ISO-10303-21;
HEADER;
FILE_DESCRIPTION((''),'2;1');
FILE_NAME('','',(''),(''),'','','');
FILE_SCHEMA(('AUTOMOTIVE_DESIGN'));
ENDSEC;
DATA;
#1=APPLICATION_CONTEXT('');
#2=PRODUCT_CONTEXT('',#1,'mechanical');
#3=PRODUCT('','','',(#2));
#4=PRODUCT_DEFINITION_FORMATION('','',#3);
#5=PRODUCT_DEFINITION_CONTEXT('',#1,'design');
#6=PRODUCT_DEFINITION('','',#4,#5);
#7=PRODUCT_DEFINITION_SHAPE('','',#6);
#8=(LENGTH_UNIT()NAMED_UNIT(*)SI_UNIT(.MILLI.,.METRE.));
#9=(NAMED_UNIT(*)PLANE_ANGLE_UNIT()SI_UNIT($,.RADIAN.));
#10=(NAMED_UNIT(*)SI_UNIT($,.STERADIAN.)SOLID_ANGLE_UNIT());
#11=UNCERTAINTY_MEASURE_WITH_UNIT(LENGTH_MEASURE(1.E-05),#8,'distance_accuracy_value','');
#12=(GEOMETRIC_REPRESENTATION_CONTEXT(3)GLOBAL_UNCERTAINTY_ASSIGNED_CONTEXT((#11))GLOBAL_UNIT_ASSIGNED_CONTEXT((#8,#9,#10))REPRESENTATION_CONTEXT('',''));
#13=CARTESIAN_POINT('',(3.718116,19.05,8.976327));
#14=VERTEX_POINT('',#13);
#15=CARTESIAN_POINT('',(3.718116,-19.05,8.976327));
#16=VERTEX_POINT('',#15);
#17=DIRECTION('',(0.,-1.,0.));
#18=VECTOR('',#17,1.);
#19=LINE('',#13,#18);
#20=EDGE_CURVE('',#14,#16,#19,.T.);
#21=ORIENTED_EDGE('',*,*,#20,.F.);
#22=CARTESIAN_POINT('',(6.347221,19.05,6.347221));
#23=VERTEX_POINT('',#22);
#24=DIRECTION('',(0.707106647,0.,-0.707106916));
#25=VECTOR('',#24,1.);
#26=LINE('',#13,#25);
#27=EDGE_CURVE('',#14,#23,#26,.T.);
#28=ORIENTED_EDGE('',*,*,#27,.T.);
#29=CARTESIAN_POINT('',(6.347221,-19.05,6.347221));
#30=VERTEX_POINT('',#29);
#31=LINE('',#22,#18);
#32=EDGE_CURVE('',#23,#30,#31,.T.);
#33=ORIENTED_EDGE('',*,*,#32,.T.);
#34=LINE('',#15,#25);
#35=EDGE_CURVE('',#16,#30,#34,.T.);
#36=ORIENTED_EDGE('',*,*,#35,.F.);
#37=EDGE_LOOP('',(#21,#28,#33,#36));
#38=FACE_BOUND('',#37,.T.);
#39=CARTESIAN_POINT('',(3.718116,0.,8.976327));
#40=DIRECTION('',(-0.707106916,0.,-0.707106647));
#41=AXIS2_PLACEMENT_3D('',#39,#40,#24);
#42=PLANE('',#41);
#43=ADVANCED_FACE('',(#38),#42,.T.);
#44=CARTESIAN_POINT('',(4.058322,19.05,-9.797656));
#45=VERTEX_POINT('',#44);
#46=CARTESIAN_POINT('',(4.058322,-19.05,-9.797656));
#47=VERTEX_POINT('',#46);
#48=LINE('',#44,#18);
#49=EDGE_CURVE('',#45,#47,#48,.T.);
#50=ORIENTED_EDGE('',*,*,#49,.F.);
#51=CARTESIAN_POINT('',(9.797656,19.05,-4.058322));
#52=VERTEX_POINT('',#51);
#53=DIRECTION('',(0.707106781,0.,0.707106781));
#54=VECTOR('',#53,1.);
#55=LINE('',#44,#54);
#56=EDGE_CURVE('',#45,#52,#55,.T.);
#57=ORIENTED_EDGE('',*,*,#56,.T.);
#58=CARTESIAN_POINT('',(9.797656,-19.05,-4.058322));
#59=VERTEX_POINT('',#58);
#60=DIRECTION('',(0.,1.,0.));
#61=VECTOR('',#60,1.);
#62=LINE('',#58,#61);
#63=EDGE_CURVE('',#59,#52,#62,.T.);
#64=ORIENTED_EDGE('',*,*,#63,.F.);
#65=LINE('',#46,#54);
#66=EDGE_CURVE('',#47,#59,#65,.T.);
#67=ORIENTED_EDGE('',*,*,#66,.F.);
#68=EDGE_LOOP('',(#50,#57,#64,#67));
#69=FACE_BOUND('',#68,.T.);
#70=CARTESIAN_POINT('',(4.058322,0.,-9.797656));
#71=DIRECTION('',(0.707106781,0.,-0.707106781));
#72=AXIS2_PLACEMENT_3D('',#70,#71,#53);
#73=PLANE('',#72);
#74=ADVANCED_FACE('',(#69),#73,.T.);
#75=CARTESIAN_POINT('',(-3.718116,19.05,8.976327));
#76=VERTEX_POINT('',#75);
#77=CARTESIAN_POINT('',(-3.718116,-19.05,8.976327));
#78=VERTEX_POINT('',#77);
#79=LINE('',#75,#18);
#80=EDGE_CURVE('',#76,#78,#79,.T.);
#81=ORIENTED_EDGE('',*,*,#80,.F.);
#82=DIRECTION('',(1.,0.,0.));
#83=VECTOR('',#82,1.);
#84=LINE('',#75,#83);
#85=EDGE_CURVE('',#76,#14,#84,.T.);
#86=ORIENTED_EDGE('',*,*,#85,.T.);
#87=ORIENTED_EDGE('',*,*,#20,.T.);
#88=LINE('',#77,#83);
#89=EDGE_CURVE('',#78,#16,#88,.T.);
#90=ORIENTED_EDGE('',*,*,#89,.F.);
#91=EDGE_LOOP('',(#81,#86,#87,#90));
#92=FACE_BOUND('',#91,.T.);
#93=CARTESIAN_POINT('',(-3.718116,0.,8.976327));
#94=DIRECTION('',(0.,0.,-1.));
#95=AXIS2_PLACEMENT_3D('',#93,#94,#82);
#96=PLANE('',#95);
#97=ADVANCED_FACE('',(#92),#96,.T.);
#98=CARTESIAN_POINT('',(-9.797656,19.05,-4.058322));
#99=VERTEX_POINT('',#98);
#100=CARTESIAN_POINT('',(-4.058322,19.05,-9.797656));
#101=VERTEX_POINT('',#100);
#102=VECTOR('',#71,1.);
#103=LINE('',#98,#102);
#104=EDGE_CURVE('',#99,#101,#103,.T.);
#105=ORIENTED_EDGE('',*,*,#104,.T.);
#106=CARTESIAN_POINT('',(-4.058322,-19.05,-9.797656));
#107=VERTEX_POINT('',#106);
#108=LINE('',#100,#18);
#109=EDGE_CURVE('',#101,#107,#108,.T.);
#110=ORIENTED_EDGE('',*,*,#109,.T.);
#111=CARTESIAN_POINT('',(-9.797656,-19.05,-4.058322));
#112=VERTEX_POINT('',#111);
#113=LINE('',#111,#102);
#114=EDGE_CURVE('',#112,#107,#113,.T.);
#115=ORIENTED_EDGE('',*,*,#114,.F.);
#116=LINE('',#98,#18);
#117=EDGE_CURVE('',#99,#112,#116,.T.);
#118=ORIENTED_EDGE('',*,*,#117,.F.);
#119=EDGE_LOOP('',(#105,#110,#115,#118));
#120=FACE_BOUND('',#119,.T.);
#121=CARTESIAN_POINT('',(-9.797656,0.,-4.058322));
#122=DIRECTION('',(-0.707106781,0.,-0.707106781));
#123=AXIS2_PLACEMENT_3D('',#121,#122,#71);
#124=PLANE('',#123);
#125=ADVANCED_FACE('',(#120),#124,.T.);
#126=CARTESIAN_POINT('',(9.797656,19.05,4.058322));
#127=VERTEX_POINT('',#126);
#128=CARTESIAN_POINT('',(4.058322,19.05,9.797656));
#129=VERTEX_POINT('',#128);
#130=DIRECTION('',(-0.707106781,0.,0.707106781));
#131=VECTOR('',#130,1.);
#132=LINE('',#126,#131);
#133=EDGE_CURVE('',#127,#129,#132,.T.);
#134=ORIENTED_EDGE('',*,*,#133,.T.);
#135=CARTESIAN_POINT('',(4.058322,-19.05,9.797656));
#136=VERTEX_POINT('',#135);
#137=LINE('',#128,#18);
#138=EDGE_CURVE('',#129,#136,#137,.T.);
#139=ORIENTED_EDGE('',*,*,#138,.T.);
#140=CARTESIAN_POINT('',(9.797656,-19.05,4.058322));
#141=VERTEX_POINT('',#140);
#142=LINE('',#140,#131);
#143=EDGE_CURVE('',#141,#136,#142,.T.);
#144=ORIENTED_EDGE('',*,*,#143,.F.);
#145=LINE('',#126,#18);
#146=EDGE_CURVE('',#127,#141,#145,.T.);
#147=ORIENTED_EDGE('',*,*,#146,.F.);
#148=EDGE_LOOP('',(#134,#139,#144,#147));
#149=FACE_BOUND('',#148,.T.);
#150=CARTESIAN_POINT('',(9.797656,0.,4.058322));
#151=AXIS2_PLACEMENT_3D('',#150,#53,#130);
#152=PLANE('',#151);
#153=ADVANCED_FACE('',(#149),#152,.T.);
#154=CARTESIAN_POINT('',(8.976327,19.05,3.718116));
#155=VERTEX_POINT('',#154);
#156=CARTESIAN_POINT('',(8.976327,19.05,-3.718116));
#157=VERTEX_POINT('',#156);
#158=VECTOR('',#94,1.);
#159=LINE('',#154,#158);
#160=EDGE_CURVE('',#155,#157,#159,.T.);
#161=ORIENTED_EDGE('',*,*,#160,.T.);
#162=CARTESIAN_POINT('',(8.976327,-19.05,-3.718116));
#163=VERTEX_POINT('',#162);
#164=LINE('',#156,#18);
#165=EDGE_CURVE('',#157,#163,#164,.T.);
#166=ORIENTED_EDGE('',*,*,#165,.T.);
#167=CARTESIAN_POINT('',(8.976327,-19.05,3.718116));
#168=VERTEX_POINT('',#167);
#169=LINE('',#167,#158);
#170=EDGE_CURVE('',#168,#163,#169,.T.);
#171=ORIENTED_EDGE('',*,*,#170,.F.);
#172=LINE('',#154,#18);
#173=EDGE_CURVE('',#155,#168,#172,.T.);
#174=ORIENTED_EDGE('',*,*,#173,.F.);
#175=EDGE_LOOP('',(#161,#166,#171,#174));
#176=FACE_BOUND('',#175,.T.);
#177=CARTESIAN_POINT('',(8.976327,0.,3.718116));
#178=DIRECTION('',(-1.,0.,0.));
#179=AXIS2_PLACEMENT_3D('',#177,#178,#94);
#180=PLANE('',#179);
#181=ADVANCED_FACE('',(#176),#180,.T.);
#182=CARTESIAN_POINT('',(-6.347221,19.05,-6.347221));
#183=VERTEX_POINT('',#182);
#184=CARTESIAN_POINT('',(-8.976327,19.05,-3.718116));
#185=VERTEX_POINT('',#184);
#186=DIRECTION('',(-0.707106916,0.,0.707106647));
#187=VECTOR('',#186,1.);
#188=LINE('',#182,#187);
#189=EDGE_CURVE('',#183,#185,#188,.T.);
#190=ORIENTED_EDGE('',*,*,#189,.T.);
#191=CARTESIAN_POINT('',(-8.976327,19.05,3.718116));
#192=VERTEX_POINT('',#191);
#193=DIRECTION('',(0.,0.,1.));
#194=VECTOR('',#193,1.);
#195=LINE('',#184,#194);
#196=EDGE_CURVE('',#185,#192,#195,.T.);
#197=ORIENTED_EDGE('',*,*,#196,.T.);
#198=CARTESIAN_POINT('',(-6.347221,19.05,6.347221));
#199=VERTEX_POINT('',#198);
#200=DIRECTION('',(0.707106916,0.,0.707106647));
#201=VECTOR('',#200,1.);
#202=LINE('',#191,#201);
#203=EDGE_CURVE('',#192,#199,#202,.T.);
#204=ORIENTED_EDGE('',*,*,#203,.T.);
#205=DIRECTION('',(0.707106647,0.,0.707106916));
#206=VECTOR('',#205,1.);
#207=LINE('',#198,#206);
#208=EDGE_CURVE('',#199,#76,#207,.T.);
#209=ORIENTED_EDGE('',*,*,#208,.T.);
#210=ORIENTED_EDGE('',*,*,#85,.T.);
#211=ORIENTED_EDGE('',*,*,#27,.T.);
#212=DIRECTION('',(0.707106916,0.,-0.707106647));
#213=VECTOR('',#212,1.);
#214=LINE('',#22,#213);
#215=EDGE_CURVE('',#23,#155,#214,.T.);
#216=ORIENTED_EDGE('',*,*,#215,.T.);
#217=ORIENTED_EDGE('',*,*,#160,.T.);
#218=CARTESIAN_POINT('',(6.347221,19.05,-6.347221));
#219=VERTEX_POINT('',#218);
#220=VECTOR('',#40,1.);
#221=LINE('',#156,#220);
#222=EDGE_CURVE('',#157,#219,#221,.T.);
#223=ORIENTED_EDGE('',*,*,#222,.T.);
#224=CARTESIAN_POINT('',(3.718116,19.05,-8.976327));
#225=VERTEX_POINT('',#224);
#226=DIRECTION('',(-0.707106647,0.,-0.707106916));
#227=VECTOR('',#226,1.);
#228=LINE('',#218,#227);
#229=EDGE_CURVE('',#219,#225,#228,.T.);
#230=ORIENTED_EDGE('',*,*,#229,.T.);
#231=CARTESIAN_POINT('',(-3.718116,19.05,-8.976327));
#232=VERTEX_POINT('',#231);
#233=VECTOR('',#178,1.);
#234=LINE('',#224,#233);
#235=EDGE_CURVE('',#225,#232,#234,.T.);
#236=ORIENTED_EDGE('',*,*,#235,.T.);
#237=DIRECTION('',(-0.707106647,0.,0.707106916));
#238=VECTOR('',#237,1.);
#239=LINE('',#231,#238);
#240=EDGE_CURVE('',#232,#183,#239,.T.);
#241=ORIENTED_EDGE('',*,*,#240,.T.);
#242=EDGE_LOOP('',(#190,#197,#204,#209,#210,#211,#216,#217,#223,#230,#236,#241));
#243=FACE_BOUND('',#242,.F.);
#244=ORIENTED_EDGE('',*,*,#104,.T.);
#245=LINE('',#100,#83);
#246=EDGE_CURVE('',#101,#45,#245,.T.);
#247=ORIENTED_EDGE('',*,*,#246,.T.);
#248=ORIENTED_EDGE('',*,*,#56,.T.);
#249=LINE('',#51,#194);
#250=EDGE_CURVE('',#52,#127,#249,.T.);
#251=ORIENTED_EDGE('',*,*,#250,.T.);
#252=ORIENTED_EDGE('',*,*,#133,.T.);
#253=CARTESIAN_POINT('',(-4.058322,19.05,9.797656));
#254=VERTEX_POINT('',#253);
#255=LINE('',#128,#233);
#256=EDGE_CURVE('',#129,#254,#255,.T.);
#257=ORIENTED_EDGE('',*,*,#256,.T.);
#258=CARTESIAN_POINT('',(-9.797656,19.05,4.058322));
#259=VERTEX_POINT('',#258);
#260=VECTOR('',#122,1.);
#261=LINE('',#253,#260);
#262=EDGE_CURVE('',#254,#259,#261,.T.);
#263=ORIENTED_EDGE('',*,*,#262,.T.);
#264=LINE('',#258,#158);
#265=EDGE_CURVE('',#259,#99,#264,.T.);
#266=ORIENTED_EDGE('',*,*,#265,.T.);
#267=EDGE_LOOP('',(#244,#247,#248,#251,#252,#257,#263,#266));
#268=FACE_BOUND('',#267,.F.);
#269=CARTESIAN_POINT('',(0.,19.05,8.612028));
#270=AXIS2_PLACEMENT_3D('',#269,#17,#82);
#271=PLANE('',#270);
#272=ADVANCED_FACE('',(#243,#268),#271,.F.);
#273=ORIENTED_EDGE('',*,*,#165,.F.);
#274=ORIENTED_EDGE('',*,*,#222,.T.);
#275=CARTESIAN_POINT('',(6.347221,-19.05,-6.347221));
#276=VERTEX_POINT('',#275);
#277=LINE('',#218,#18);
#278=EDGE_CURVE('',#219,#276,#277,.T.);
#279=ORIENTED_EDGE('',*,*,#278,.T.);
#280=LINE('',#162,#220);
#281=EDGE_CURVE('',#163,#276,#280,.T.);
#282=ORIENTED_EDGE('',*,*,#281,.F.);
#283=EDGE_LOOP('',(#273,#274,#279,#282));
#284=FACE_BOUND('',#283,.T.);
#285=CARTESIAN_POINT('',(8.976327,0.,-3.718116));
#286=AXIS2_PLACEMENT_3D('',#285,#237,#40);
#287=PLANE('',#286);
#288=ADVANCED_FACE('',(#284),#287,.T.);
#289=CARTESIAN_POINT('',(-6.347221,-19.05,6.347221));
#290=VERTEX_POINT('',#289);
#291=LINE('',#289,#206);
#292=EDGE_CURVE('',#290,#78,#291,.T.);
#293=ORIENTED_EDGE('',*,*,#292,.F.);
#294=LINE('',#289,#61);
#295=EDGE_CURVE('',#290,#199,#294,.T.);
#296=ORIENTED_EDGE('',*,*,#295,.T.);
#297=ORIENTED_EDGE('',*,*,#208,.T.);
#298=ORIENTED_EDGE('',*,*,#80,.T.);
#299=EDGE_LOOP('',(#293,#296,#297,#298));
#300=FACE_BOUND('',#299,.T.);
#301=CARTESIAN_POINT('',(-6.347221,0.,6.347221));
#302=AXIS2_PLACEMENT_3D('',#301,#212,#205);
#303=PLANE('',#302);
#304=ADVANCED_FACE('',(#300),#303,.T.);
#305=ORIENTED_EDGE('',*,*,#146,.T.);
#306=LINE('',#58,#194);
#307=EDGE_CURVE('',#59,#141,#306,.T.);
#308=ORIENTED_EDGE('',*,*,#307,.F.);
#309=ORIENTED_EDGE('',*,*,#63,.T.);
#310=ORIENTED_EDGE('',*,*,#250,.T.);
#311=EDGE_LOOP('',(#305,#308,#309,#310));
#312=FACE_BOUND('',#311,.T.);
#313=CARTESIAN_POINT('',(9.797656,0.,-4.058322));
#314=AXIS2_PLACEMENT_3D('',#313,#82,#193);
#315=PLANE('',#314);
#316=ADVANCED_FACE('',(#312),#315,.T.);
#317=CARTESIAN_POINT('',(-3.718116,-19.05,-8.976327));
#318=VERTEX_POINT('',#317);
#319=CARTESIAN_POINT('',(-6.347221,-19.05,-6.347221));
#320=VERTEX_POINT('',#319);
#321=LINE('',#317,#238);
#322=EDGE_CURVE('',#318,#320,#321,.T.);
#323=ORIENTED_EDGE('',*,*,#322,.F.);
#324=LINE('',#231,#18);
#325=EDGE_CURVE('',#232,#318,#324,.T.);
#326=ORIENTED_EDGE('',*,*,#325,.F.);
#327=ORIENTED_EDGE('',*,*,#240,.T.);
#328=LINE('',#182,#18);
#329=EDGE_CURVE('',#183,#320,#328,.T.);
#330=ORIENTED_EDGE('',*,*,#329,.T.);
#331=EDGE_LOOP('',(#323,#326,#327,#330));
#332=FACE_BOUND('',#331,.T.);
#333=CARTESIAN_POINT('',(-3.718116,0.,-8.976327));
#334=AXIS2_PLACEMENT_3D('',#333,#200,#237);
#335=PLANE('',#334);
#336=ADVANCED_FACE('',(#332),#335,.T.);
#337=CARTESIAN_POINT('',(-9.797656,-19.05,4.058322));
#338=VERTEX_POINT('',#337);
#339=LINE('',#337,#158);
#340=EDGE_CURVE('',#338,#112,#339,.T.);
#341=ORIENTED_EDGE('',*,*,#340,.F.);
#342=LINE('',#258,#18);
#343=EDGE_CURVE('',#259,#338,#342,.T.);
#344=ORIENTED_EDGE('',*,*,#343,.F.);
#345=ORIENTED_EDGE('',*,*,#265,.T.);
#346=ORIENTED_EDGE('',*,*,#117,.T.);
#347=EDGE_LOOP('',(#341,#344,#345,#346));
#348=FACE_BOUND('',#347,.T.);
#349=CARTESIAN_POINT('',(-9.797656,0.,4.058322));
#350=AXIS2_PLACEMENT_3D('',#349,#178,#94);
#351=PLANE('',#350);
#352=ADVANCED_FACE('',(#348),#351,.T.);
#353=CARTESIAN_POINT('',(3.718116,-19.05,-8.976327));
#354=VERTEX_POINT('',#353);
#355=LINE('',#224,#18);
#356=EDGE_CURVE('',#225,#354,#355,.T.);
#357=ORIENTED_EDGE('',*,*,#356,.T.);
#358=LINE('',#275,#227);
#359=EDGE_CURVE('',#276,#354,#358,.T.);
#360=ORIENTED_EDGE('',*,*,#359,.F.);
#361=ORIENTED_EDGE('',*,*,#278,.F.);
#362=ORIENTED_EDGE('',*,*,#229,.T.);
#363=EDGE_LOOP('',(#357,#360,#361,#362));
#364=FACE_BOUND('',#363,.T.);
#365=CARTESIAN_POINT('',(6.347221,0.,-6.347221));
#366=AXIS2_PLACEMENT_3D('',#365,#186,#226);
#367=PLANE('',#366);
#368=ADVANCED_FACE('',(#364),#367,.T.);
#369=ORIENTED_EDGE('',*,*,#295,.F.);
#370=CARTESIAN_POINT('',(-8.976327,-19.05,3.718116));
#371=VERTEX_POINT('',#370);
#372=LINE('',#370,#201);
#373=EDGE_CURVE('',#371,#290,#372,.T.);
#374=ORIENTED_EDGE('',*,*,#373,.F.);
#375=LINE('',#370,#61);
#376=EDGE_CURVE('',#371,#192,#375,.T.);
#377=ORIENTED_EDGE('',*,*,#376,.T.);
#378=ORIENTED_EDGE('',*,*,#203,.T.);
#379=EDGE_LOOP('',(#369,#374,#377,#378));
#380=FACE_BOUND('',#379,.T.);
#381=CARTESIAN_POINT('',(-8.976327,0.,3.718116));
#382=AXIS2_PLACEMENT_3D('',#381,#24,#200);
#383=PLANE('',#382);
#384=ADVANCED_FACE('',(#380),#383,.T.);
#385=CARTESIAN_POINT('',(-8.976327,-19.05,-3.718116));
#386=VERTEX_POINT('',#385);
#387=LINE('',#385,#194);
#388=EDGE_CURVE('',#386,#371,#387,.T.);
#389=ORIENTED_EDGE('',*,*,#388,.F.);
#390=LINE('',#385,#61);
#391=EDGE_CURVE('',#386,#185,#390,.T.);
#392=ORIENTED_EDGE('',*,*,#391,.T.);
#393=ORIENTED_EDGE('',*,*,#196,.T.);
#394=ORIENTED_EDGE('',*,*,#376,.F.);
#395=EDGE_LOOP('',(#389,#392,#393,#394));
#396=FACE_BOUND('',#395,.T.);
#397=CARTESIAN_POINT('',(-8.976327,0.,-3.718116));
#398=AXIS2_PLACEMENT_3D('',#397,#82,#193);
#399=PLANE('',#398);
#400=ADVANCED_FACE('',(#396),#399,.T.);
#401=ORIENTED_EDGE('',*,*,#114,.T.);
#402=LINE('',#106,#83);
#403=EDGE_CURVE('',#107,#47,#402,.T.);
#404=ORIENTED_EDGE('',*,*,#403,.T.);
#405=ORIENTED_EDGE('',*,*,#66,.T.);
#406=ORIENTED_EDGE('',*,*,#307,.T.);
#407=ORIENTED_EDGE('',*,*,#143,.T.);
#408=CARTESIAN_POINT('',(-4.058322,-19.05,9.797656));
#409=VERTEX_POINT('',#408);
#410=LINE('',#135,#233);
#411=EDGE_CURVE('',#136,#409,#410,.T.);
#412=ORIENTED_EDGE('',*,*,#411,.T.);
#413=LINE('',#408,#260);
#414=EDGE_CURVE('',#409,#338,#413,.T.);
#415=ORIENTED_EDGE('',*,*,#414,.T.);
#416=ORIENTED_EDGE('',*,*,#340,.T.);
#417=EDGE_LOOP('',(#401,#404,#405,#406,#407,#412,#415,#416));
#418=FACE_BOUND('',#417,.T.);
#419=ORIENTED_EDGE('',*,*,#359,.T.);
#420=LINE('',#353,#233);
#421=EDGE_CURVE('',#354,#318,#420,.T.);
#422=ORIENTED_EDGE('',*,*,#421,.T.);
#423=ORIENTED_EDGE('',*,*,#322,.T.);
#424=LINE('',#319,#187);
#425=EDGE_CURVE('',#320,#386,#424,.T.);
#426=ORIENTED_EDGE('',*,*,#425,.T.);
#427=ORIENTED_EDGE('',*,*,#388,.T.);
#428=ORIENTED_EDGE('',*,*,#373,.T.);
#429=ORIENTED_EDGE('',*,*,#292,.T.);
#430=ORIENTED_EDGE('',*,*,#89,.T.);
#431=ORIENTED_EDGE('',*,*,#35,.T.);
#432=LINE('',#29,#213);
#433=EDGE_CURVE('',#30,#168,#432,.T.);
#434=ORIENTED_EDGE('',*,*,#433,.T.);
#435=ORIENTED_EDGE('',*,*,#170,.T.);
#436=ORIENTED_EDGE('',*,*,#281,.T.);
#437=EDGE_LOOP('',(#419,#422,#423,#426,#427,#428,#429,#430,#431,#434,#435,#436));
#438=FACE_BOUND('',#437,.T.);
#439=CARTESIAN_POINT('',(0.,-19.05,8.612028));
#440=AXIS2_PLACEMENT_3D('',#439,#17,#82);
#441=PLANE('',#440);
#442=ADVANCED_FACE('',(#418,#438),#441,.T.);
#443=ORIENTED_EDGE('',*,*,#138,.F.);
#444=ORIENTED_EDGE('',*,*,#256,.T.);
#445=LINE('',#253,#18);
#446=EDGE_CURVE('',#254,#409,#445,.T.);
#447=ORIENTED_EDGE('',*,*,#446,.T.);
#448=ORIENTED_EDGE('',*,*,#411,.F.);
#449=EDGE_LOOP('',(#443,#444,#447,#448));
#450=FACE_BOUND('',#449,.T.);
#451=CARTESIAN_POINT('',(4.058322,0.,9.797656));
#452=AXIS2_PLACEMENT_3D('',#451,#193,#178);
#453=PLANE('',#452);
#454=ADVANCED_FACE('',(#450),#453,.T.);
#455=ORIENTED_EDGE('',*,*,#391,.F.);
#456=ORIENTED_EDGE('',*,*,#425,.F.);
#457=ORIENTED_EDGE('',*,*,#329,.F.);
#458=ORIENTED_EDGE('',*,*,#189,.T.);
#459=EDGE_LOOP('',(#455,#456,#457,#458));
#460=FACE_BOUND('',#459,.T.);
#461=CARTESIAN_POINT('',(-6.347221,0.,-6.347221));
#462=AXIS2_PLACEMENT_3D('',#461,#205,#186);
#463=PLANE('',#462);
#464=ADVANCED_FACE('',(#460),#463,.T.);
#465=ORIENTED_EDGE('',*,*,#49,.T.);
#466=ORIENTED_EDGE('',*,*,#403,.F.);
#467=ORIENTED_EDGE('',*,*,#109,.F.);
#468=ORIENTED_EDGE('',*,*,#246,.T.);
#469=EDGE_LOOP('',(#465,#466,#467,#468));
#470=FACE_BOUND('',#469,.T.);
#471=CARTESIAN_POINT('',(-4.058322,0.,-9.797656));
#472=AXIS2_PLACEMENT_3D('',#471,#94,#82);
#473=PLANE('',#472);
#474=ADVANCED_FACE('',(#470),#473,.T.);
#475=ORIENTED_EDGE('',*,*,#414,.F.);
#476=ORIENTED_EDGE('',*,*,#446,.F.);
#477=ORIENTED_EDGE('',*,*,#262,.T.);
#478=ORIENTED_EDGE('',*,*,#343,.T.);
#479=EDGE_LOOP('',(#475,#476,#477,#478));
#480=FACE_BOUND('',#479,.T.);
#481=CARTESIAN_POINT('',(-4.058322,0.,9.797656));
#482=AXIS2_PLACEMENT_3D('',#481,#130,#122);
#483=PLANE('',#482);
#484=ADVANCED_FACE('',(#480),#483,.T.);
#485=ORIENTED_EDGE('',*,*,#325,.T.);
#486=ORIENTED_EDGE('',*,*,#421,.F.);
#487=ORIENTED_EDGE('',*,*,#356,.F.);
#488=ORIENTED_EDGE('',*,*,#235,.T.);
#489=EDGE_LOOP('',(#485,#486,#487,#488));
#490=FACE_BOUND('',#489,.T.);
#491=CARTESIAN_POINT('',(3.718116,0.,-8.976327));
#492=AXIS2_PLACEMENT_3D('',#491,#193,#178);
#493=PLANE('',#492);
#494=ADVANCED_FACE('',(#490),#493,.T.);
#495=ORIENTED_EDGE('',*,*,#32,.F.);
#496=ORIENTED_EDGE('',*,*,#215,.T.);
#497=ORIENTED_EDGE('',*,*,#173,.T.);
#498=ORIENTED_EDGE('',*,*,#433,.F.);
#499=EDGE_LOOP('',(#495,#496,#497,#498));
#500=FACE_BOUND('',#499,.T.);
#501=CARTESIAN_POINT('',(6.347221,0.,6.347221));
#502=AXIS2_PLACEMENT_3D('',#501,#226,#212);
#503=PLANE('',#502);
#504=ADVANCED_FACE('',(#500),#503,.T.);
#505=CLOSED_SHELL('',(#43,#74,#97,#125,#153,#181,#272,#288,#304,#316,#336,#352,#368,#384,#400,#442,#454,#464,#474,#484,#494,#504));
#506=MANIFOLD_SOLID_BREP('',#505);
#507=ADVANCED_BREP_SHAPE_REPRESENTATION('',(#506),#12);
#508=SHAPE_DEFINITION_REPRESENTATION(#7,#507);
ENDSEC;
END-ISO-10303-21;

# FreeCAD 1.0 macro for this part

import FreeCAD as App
import Part
import Sketcher

V = App.Vector
Q = App.Units.Quantity


def add_polygon(sketch, points):
    """Adds a closed chain of lines whose ends are joined by coincident constraints."""
    first, n = sketch.GeometryCount, len(points)
    for a, b in zip(points, points[1:] + points[:1]):
        sketch.addGeometry(Part.LineSegment(App.Vector(*a, 0), App.Vector(*b, 0)), False)
    for i in range(n):
        sketch.addConstraint(Sketcher.Constraint("Coincident", first + i, 2, first + (i + 1) % n, 1))

doc = App.newDocument("Part")
body = doc.addObject("PartDesign::Body", "Body")

sketch1 = body.newObject("Sketcher::SketchObject", "Sketch")
sketch1.AttachmentSupport = (doc.getObject("XZ_Plane"), [""])
sketch1.MapMode = "FlatFace"
add_polygon(sketch1, [(9.797656, -4.058322), (9.797656, 4.058322), (4.058322, 9.797656), (-4.058322, 9.797656), (-9.797656, 4.058322), (-9.797656, -4.058322), (-4.058322, -9.797656), (4.058322, -9.797656)])
add_polygon(sketch1, [(-6.347221, 6.347221), (-3.718116, 8.976327), (3.718116, 8.976327), (6.347221, 6.347221), (8.976327, 3.718116), (8.976327, -3.718116), (6.347221, -6.347221), (3.718116, -8.976327), (-3.718116, -8.976327), (-6.347221, -6.347221), (-8.976327, -3.718116), (-8.976327, 3.718116)])
sketch1.addConstraint([
    Sketcher.Constraint("Vertical", 0),
    Sketcher.Constraint("Horizontal", 2),
    Sketcher.Constraint("Vertical", 4),
    Sketcher.Constraint("Horizontal", 6),
    Sketcher.Constraint("Horizontal", 9),
    Sketcher.Constraint("Vertical", 12),
    Sketcher.Constraint("Horizontal", 15),
    Sketcher.Constraint("Vertical", 18),
    Sketcher.Constraint("Symmetric", 0, 2, 4, 2, -1, 1),
    Sketcher.Constraint("Symmetric", 1, 2, 5, 2, -1, 1),
    Sketcher.Constraint("Symmetric", 8, 2, 14, 2, -1, 1),
    Sketcher.Constraint("Symmetric", 10, 2, 16, 2, -1, 1),
    Sketcher.Constraint("Symmetric", 11, 2, 17, 2, -1, 1),
    Sketcher.Constraint("Symmetric", 13, 2, 19, 2, -1, 1),
    Sketcher.Constraint("Symmetric", 13, 2, 16, 2, -2),
    Sketcher.Constraint("Perpendicular", 1, 3),
    Sketcher.Constraint("Perpendicular", 5, 7),
    Sketcher.Constraint("Parallel", 7, 8),
    Sketcher.Constraint("Perpendicular", 8, 10),
    Sketcher.Constraint("Parallel", 10, 11),
    Sketcher.Constraint("Perpendicular", 11, 13),
    Sketcher.Constraint("Perpendicular", 14, 16),
    Sketcher.Constraint("Perpendicular", 17, 19),
    Sketcher.Constraint("Horizontal", 0, 2, 3, 2),
    Sketcher.Constraint("Horizontal", 4, 2, 7, 2),
    Sketcher.Constraint("Horizontal", 12, 2, 17, 2),
    Sketcher.Constraint("Equal", 6, 0),
    Sketcher.Constraint("Equal", 15, 12),
    Sketcher.Constraint("Equal", 10, 11),
    Sketcher.Constraint("DistanceY", 0, 2, 10, 2, Q("2.288899 mm")),
    Sketcher.Constraint("DistanceX", 2, 2, 2, 1, Q("8.116644 mm")),
    Sketcher.Constraint("DistanceX", 9, 1, 9, 2, Q("7.436232 mm")),
    Sketcher.Constraint("DistanceX", 3, 2, 0, 2, Q("19.595312 mm")),
])
pad1 = body.newObject("PartDesign::Pad", "Pad")
pad1.Profile = sketch1
pad1.Length = Q("1.5 in")
pad1.Midplane = True

doc.recompute()
